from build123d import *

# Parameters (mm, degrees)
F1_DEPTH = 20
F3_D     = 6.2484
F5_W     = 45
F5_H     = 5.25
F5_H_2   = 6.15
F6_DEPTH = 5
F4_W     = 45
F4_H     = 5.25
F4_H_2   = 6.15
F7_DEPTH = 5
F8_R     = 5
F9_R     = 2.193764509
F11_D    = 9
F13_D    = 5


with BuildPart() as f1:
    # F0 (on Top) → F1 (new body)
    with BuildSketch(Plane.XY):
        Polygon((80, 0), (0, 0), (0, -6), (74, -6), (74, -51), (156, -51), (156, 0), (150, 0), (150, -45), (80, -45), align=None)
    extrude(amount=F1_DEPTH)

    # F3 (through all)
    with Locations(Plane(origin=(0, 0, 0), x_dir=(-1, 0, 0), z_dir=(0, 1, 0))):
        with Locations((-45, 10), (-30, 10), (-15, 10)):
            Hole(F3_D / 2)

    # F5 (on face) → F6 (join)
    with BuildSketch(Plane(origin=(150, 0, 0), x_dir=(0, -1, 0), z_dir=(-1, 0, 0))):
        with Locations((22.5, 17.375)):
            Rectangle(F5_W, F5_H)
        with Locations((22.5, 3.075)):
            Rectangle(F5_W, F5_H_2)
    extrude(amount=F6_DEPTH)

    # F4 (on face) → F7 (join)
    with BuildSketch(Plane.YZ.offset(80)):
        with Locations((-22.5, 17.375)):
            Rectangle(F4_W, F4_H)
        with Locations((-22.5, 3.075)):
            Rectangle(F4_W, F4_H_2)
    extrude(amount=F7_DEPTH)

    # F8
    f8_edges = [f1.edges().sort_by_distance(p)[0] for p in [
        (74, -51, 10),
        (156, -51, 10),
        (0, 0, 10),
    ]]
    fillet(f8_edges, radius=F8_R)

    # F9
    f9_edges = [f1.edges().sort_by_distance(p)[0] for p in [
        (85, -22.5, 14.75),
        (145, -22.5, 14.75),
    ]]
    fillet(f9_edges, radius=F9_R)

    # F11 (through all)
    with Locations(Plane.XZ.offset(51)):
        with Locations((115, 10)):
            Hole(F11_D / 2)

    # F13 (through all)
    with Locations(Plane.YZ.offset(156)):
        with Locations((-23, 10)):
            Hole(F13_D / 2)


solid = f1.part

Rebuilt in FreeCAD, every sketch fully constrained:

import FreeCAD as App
import Part
import Sketcher
from FreeCAD import Vector


def edges_at(feature, points):
    """Names of the edges that pass closest to the given points."""
    edges = feature.Shape.Edges
    near = lambda p: min(range(len(edges)), key=lambda i: edges[i].distToShape(Part.Vertex(*p))[0])
    return sorted({f"Edge{near(p) + 1}" for p in points})


def add_polygon(sketch, points):
    """Adds a closed chain of lines whose ends are joined by coincident constraints."""
    first, n = sketch.GeometryCount, len(points)
    for a, b in zip(points, points[1:] + points[:1]):
        sketch.addGeometry(Part.LineSegment(App.Vector(*a, 0), App.Vector(*b, 0)), False)
    for i in range(n):
        sketch.addConstraint(Sketcher.Constraint("Coincident", first + i, 2, first + (i + 1) % n, 1))

doc = App.newDocument("Part")
params = doc.addObject("Spreadsheet::Sheet", "Params")
for row, (alias, value) in enumerate([
    ("sketch1_width", "80 mm"),
    ("sketch1_width2", "74 mm"),
    ("sketch1_width3", "82 mm"),
    ("sketch1_width4", "6 mm"),
    ("sketch1_height", "45 mm"),
    ("pad1_length", "20 mm"),
    ("hole_diameter", "6.2484 mm"),
    ("sketch3_width", "45 mm"),
    ("sketch3_height", "5.25 mm"),
    ("sketch3_height2", "6.15 mm"),
    ("pad2_length", "5 mm"),
    ("sketch4_width", "45 mm"),
    ("sketch4_height", "5.25 mm"),
    ("sketch4_height2", "6.15 mm"),
    ("pad3_length", "5 mm"),
    ("fillet_radius", "5 mm"),
    ("fillet2_radius", "2.193765 mm"),
    ("sketch5_diameter", "9 mm"),
    ("hole2_diameter", "9 mm"),
    ("sketch6_diameter", "5 mm"),
    ("hole3_diameter", "5 mm"),
], start=1):
    params.set(f"A{row}", alias)
    params.set(f"B{row}", "=" + value)
    params.setAlias(f"B{row}", alias)

body = doc.addObject("PartDesign::Body", "Body")

# Sketch on XY plane
sketch1 = body.newObject("Sketcher::SketchObject", "Sketch")
sketch1.AttachmentSupport = (doc.getObject("XY_Plane"), [""])
sketch1.MapMode = "FlatFace"
add_polygon(sketch1, [(80, 0), (0, 0), (0, -6), (74, -6), (74, -51), (156, -51), (156, 0), (150, 0), (150, -45), (80, -45)])  # lines 0-9
sketch1.addConstraint(Sketcher.Constraint("Horizontal", 0))
sketch1.addConstraint(Sketcher.Constraint("Vertical", 1))
sketch1.addConstraint(Sketcher.Constraint("Horizontal", 2))
sketch1.addConstraint(Sketcher.Constraint("Vertical", 3))
sketch1.addConstraint(Sketcher.Constraint("Horizontal", 4))
sketch1.addConstraint(Sketcher.Constraint("Vertical", 5))
sketch1.addConstraint(Sketcher.Constraint("Horizontal", 6))
sketch1.addConstraint(Sketcher.Constraint("Vertical", 7))
sketch1.addConstraint(Sketcher.Constraint("Horizontal", 8))
sketch1.addConstraint(Sketcher.Constraint("Vertical", 9))
sketch1.addConstraint(Sketcher.Constraint("Coincident", 0, 2, -1, 1))
sketch1.addConstraint(Sketcher.Constraint("PointOnObject", 5, 2, -1))
sketch1.addConstraint(Sketcher.Constraint("Equal", 6, 1))
sketch1.addConstraint(Sketcher.Constraint("Equal", 3, 7))
sketch1.addConstraint(Sketcher.Constraint("DistanceX", 0, 2, 0, 1, 80.0))
sketch1.addConstraint(Sketcher.Constraint("DistanceX", 2, 1, 2, 2, 74.0))
sketch1.addConstraint(Sketcher.Constraint("DistanceX", 4, 1, 4, 2, 82.0))
sketch1.addConstraint(Sketcher.Constraint("DistanceX", 6, 2, 6, 1, 6.0))
sketch1.addConstraint(Sketcher.Constraint("DistanceY", 3, 2, 3, 1, 45.0))
sketch1.setExpression("Constraints[24]", "Params.sketch1_width")
sketch1.setExpression("Constraints[25]", "Params.sketch1_width2")
sketch1.setExpression("Constraints[26]", "Params.sketch1_width3")
sketch1.setExpression("Constraints[27]", "Params.sketch1_width4")
sketch1.setExpression("Constraints[28]", "Params.sketch1_height")
pad1 = body.newObject("PartDesign::Pad", "Pad")
pad1.Profile = sketch1
pad1.setExpression("Length", "Params.pad1_length")

# Sketch on XZ plane
sketch2 = body.newObject("Sketcher::SketchObject", "Sketch001")
sketch2.AttachmentSupport = (doc.getObject("XZ_Plane"), [""])
sketch2.MapMode = "FlatFace"
sketch2.addGeometry(Part.Circle(Vector(45, 10, 0), Vector(0, 0, 1), 3.1242), False)
sketch2.addGeometry(Part.Circle(Vector(30, 10, 0), Vector(0, 0, 1), 3.1242), False)
sketch2.addGeometry(Part.Circle(Vector(15, 10, 0), Vector(0, 0, 1), 3.1242), False)
sketch2.addConstraint(Sketcher.Constraint("Equal", 0, 1))
sketch2.addConstraint(Sketcher.Constraint("Equal", 1, 2))
sketch2.addConstraint(Sketcher.Constraint("Horizontal", 0, 3, 1, 3))
sketch2.addConstraint(Sketcher.Constraint("Horizontal", 1, 3, 2, 3))
sketch2.addConstraint(Sketcher.Constraint("DistanceX", -1, 1, 0, 3, 45.0))
sketch2.addConstraint(Sketcher.Constraint("DistanceY", -1, 1, 0, 3, 10.0))
sketch2.addConstraint(Sketcher.Constraint("DistanceX", -1, 1, 1, 3, 30.0))
sketch2.addConstraint(Sketcher.Constraint("DistanceX", -1, 1, 2, 3, 15.0))
sketch2.addConstraint(Sketcher.Constraint("Diameter", 0, 6.2484))
doc.recompute()
hole = body.newObject("PartDesign::Hole", "Hole")
hole.Profile = sketch2
hole.ThreadType = "None"
hole.setExpression("Diameter", "Params.hole_diameter")
hole.DepthType = "ThroughAll"
hole.Reversed = True

# Sketch on YZ plane
sketch3 = body.newObject("Sketcher::SketchObject", "Sketch002")
sketch3.AttachmentSupport = (doc.getObject("YZ_Plane"), [""])
sketch3.MapMode = "FlatFace"
sketch3.AttachmentOffset = App.Placement(Vector(0, 0, 150), App.Rotation())
add_polygon(sketch3, [(0, 20), (0, 14.75), (-45, 14.75), (-45, 20)])  # lines 0-3
add_polygon(sketch3, [(0, 6.15), (0, 0), (-45, 0), (-45, 6.15)])  # lines 4-7
sketch3.addConstraint(Sketcher.Constraint("Vertical", 0))
sketch3.addConstraint(Sketcher.Constraint("Horizontal", 1))
sketch3.addConstraint(Sketcher.Constraint("Vertical", 2))
sketch3.addConstraint(Sketcher.Constraint("Horizontal", 3))
sketch3.addConstraint(Sketcher.Constraint("Vertical", 4))
sketch3.addConstraint(Sketcher.Constraint("Horizontal", 5))
sketch3.addConstraint(Sketcher.Constraint("Vertical", 6))
sketch3.addConstraint(Sketcher.Constraint("Horizontal", 7))
sketch3.addConstraint(Sketcher.Constraint("Coincident", 4, 2, -1, 1))
sketch3.addConstraint(Sketcher.Constraint("PointOnObject", 0, 2, -2))
sketch3.addConstraint(Sketcher.Constraint("Vertical", 2, 2, 5, 2))
sketch3.addConstraint(Sketcher.Constraint("DistanceX", 1, 2, 1, 1, 45.0))
sketch3.addConstraint(Sketcher.Constraint("DistanceY", -1, 1, 2, 2, 20.0))
sketch3.addConstraint(Sketcher.Constraint("DistanceY", 0, 2, 0, 1, 5.25))
sketch3.addConstraint(Sketcher.Constraint("DistanceY", 4, 2, 4, 1, 6.15))
sketch3.setExpression("Constraints[19]", "Params.sketch3_width")
sketch3.setExpression("Constraints[21]", "Params.sketch3_height")
sketch3.setExpression("Constraints[22]", "Params.sketch3_height2")
pad2 = body.newObject("PartDesign::Pad", "Pad001")
pad2.Profile = sketch3
pad2.setExpression("Length", "Params.pad2_length")
pad2.Reversed = True

# Sketch on YZ plane
sketch4 = body.newObject("Sketcher::SketchObject", "Sketch003")
sketch4.AttachmentSupport = (doc.getObject("YZ_Plane"), [""])
sketch4.MapMode = "FlatFace"
sketch4.AttachmentOffset = App.Placement(Vector(0, 0, 80), App.Rotation())
add_polygon(sketch4, [(-45, 20), (-45, 14.75), (0, 14.75), (0, 20)])  # lines 0-3
add_polygon(sketch4, [(-45, 6.15), (-45, 0), (0, 0), (0, 6.15)])  # lines 4-7
sketch4.addConstraint(Sketcher.Constraint("Vertical", 0))
sketch4.addConstraint(Sketcher.Constraint("Horizontal", 1))
sketch4.addConstraint(Sketcher.Constraint("Vertical", 2))
sketch4.addConstraint(Sketcher.Constraint("Horizontal", 3))
sketch4.addConstraint(Sketcher.Constraint("Vertical", 4))
sketch4.addConstraint(Sketcher.Constraint("Horizontal", 5))
sketch4.addConstraint(Sketcher.Constraint("Vertical", 6))
sketch4.addConstraint(Sketcher.Constraint("Horizontal", 7))
sketch4.addConstraint(Sketcher.Constraint("Coincident", 5, 2, -1, 1))
sketch4.addConstraint(Sketcher.Constraint("PointOnObject", 1, 2, -2))
sketch4.addConstraint(Sketcher.Constraint("Vertical", 3, 2, 4, 2))
sketch4.addConstraint(Sketcher.Constraint("DistanceX", 1, 1, 1, 2, 45.0))
sketch4.addConstraint(Sketcher.Constraint("DistanceY", -1, 1, 2, 2, 20.0))
sketch4.addConstraint(Sketcher.Constraint("DistanceY", 0, 2, 0, 1, 5.25))
sketch4.addConstraint(Sketcher.Constraint("DistanceY", 4, 2, 4, 1, 6.15))
sketch4.setExpression("Constraints[19]", "Params.sketch4_width")
sketch4.setExpression("Constraints[21]", "Params.sketch4_height")
sketch4.setExpression("Constraints[22]", "Params.sketch4_height2")
pad3 = body.newObject("PartDesign::Pad", "Pad002")
pad3.Profile = sketch4
pad3.setExpression("Length", "Params.pad3_length")
doc.recompute()

fillet = body.newObject("PartDesign::Fillet", "Fillet")
fillet.Base = (pad3, edges_at(pad3, [(74, -51, 10), (156, -51, 10), (0, 0, 10)]))
fillet.setExpression("Radius", "Params.fillet_radius")
doc.recompute()

fillet2 = body.newObject("PartDesign::Fillet", "Fillet001")
fillet2.Base = (fillet, edges_at(fillet, [(85, -22.5, 14.75), (145, -22.5, 14.75)]))
fillet2.setExpression("Radius", "Params.fillet2_radius")

# Sketch on XZ plane
sketch5 = body.newObject("Sketcher::SketchObject", "Sketch004")
sketch5.AttachmentSupport = (doc.getObject("XZ_Plane"), [""])
sketch5.MapMode = "FlatFace"
sketch5.AttachmentOffset = App.Placement(Vector(0, 0, 51), App.Rotation())
sketch5.addGeometry(Part.Circle(Vector(115, 10, 0), Vector(0, 0, 1), 4.5), False)
sketch5.addConstraint(Sketcher.Constraint("Diameter", 0, 9.0))
sketch5.addConstraint(Sketcher.Constraint("DistanceX", -1, 1, 0, 3, 115.0))
sketch5.addConstraint(Sketcher.Constraint("DistanceY", -1, 1, 0, 3, 10.0))
sketch5.setExpression("Constraints[0]", "Params.sketch5_diameter")
doc.recompute()
hole2 = body.newObject("PartDesign::Hole", "Hole001")
hole2.Profile = sketch5
hole2.ThreadType = "None"
hole2.setExpression("Diameter", "Params.hole2_diameter")
hole2.DepthType = "ThroughAll"

# Sketch on YZ plane
sketch6 = body.newObject("Sketcher::SketchObject", "Sketch005")
sketch6.AttachmentSupport = (doc.getObject("YZ_Plane"), [""])
sketch6.MapMode = "FlatFace"
sketch6.AttachmentOffset = App.Placement(Vector(0, 0, 156), App.Rotation())
sketch6.addGeometry(Part.Circle(Vector(-23, 10, 0), Vector(0, 0, 1), 2.5), False)
sketch6.addConstraint(Sketcher.Constraint("Diameter", 0, 5.0))
sketch6.addConstraint(Sketcher.Constraint("DistanceX", 0, 3, -1, 1, 23.0))
sketch6.addConstraint(Sketcher.Constraint("DistanceY", -1, 1, 0, 3, 10.0))
sketch6.setExpression("Constraints[0]", "Params.sketch6_diameter")
doc.recompute()
hole3 = body.newObject("PartDesign::Hole", "Hole002")
hole3.Profile = sketch6
hole3.ThreadType = "None"
hole3.setExpression("Diameter", "Params.hole3_diameter")
hole3.DepthType = "ThroughAll"

doc.recompute()
